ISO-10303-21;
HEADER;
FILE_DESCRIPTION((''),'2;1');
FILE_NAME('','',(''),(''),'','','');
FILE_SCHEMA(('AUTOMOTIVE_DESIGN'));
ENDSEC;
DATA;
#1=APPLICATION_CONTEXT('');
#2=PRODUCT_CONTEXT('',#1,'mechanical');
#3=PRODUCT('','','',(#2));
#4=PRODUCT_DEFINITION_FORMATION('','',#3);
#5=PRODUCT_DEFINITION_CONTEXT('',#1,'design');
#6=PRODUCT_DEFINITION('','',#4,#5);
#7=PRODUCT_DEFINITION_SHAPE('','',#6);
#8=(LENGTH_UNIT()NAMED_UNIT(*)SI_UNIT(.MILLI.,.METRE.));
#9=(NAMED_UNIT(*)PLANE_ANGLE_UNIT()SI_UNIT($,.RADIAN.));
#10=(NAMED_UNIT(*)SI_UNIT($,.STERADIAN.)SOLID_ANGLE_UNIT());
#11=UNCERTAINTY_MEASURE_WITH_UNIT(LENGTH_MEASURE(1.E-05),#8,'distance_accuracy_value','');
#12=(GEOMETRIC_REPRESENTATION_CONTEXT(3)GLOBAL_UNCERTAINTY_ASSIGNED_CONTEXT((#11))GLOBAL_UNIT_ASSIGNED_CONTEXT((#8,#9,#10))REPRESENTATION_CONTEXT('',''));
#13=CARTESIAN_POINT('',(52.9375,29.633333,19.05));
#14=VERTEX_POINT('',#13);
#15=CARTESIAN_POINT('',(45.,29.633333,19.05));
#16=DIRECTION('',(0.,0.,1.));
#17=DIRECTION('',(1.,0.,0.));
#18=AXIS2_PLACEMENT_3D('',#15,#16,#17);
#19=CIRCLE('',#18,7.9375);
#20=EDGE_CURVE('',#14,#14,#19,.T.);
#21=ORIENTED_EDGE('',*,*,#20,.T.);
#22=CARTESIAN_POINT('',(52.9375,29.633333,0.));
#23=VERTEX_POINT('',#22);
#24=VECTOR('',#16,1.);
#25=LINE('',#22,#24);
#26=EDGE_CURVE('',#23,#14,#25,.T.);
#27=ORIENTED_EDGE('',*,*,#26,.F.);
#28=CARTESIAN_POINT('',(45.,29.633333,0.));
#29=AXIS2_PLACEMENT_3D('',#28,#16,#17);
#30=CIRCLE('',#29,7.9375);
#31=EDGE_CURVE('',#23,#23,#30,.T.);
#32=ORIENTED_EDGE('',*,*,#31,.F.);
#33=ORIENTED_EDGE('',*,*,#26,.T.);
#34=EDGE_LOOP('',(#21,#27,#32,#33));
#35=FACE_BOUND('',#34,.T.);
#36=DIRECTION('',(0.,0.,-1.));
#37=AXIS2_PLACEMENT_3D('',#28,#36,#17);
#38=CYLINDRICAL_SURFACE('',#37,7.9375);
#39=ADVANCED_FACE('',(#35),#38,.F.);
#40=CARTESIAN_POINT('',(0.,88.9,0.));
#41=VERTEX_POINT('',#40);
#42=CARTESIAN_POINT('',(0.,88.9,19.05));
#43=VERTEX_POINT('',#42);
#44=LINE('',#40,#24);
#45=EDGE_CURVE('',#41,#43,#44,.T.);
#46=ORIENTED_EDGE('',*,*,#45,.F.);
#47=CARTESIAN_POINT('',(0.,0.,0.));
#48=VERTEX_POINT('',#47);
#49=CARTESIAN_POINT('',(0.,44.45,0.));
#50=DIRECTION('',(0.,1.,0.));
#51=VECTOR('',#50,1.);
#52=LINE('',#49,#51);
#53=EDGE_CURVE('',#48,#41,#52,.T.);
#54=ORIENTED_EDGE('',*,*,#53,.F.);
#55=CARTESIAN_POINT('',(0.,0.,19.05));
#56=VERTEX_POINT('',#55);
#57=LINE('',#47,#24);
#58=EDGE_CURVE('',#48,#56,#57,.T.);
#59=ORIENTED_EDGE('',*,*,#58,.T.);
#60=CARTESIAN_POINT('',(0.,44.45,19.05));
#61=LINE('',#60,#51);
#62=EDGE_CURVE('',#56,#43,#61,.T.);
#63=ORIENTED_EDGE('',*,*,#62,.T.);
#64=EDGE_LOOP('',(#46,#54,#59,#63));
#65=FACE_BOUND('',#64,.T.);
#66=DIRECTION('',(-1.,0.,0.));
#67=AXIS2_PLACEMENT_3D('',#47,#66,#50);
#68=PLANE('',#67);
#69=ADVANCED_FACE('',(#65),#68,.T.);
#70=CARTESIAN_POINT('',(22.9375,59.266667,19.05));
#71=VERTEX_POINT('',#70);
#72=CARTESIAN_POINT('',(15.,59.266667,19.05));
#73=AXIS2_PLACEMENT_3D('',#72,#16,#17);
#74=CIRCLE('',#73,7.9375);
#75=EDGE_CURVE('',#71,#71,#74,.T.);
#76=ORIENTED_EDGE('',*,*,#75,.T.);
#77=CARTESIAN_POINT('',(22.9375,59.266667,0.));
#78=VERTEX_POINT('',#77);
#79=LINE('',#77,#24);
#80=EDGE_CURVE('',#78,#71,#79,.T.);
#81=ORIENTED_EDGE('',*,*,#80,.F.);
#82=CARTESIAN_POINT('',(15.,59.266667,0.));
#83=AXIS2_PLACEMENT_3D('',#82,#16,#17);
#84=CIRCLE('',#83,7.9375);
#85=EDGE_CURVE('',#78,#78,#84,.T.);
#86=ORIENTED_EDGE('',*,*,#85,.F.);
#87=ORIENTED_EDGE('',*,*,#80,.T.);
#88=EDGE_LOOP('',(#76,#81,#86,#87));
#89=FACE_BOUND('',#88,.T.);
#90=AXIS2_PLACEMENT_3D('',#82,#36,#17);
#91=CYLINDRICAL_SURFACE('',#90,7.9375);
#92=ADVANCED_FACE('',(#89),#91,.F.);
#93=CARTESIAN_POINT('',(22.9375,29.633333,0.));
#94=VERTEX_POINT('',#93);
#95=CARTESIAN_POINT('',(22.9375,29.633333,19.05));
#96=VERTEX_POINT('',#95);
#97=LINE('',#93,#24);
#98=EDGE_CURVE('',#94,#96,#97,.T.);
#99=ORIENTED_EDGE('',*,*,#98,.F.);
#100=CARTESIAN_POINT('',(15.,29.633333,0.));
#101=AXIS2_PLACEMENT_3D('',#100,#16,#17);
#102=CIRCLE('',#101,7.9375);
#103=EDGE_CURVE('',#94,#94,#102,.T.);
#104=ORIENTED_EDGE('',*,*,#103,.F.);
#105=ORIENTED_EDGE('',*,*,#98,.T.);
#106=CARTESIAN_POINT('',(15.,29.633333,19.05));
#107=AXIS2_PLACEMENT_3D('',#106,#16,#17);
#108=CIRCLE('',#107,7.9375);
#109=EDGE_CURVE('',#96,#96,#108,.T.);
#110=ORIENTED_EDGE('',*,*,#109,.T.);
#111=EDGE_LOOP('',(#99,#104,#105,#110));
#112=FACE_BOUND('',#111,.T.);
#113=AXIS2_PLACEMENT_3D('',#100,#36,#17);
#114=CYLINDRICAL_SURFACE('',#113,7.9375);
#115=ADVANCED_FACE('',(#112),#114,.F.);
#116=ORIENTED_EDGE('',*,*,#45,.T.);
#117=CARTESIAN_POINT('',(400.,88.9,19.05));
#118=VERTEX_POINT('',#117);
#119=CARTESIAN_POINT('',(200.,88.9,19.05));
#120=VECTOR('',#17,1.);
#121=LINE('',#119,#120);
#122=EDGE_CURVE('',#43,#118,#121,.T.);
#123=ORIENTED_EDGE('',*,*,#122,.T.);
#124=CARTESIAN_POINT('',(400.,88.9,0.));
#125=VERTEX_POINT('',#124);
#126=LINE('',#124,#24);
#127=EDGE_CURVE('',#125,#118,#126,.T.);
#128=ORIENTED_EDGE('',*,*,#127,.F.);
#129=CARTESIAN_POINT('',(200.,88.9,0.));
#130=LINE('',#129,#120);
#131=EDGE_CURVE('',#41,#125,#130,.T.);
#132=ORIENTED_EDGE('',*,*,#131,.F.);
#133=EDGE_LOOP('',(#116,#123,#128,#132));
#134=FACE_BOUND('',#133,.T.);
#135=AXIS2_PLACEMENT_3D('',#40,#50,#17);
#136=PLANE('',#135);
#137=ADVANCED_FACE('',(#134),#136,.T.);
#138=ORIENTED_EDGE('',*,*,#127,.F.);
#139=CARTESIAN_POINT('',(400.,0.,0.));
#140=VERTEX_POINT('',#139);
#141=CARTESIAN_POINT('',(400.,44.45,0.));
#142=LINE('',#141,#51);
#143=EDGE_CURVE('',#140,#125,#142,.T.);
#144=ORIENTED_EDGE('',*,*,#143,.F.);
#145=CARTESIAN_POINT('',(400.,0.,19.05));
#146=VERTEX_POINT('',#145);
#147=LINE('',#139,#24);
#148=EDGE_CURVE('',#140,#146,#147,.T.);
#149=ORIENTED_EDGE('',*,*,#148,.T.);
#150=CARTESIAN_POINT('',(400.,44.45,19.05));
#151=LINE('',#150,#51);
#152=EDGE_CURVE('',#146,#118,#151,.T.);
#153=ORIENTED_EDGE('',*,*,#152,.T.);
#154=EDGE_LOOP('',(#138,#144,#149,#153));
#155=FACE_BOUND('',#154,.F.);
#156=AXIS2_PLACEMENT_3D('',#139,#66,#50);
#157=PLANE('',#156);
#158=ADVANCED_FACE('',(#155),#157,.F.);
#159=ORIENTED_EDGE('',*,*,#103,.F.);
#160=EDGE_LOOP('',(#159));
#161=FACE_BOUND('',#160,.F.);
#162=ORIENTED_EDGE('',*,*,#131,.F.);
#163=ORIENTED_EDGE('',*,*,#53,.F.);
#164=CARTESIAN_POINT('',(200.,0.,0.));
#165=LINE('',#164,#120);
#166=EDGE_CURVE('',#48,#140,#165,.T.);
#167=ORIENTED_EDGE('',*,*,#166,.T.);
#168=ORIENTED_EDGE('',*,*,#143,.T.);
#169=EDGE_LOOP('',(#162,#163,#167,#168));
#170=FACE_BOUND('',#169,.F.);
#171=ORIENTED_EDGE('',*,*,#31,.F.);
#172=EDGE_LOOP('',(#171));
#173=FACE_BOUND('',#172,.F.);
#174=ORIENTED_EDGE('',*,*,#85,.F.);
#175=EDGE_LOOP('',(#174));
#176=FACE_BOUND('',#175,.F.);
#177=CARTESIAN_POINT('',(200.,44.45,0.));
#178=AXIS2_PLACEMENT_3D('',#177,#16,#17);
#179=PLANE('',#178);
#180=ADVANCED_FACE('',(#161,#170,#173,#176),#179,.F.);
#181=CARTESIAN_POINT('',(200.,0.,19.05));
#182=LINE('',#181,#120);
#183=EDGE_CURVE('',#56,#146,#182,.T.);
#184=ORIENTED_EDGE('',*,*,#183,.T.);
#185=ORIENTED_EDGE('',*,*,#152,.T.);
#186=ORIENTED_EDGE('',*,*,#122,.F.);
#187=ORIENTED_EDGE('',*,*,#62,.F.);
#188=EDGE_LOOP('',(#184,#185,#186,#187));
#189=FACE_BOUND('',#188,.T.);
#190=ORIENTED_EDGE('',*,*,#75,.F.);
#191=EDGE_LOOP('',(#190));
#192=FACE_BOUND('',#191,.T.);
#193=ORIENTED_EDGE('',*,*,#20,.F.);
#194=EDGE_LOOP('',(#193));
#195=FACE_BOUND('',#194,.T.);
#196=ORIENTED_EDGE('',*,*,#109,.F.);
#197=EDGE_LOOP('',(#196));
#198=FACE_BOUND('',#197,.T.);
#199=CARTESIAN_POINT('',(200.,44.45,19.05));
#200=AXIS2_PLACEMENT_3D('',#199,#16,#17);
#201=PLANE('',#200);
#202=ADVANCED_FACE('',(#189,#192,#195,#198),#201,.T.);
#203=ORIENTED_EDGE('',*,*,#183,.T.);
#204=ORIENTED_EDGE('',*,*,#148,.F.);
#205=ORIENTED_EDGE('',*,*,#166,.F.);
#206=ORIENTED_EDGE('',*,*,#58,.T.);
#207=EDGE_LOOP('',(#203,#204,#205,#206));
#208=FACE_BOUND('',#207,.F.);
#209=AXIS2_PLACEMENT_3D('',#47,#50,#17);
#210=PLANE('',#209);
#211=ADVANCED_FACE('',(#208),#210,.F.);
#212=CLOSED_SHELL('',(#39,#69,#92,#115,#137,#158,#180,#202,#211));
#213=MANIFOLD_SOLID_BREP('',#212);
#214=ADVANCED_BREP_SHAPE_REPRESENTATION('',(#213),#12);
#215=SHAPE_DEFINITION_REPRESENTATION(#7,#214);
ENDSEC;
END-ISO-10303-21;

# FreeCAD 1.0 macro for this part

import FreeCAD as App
import Part
import Sketcher

V = App.Vector
Q = App.Units.Quantity


def add_polygon(sketch, points):
    """Adds a closed chain of lines whose ends are joined by coincident constraints."""
    first, n = sketch.GeometryCount, len(points)
    for a, b in zip(points, points[1:] + points[:1]):
        sketch.addGeometry(Part.LineSegment(App.Vector(*a, 0), App.Vector(*b, 0)), False)
    for i in range(n):
        sketch.addConstraint(Sketcher.Constraint("Coincident", first + i, 2, first + (i + 1) % n, 1))

doc = App.newDocument("Part")
body = doc.addObject("PartDesign::Body", "Body")

# Sketch on XY plane
sketch1 = doc.addObject("Sketcher::SketchObject", "Sketch")
body.addObject(sketch1)
sketch1.AttachmentSupport = (doc.XY_Plane, [""])
sketch1.MapMode = "FlatFace"
add_polygon(sketch1, [(0, 88.9), (0, 0), (400, 0), (400, 88.9)])  # lines 0-3
sketch1.addGeometry(Part.Circle(V(15, 29.633333, 0), V(0, 0, 1), 7.9375), False)  # 4
sketch1.addGeometry(Part.Circle(V(45, 29.633333, 0), V(0, 0, 1), 7.9375), False)  # 5
sketch1.addGeometry(Part.Circle(V(15, 59.266667, 0), V(0, 0, 1), 7.9375), False)  # 6
sketch1.addConstraint([
    Sketcher.Constraint("Vertical", 0),
    Sketcher.Constraint("Horizontal", 1),
    Sketcher.Constraint("Vertical", 2),
    Sketcher.Constraint("Horizontal", 3),
    Sketcher.Constraint("Coincident", 0, 2, -1, 1),
    Sketcher.Constraint("Equal", 4, 5),
    Sketcher.Constraint("Equal", 5, 6),
    Sketcher.Constraint("Horizontal", 4, 3, 5, 3),
    Sketcher.Constraint("Vertical", 4, 3, 6, 3),
    Sketcher.Constraint("Diameter", 4, Q("0.625 in")),
    Sketcher.Constraint("DistanceY", 0, 2, 0, 1, Q("3.5 in")),
    Sketcher.Constraint("DistanceX", 1, 1, 1, 2, 400.0),
    Sketcher.Constraint("DistanceX", -1, 1, 4, 3, 15.0),
    Sketcher.Constraint("DistanceX", -1, 1, 5, 3, 45.0),
    Sketcher.Constraint("DistanceY", -1, 1, 4, 3, 29.633333),
    Sketcher.Constraint("DistanceY", -1, 1, 6, 3, 59.266667),
])
pad1 = doc.addObject("PartDesign::Pad", "Pad")
body.addObject(pad1)
pad1.Profile = sketch1
pad1.Length = Q("0.75 in")

doc.recompute()
